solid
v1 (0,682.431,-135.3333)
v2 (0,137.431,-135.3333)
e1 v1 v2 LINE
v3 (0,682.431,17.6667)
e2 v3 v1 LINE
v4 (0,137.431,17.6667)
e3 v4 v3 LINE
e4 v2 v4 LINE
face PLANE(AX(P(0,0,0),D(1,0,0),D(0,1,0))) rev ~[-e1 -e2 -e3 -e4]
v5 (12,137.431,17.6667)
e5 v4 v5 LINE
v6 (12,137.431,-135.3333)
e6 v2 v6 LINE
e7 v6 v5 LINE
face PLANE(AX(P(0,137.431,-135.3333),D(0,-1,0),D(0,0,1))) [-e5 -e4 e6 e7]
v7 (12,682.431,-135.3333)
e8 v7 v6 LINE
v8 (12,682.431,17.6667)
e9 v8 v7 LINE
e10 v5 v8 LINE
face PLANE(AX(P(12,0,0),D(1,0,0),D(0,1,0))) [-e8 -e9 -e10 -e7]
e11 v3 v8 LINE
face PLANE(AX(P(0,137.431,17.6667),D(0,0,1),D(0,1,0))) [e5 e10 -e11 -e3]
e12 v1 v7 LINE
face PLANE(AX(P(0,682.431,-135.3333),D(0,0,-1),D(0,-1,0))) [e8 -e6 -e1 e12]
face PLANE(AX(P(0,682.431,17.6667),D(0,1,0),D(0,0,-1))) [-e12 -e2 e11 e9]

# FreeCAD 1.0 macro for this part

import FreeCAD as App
import Part
import Sketcher
from FreeCAD import Vector


def add_polygon(sketch, points):
    """Adds a closed chain of lines whose ends are joined by coincident constraints."""
    first, n = sketch.GeometryCount, len(points)
    for a, b in zip(points, points[1:] + points[:1]):
        sketch.addGeometry(Part.LineSegment(App.Vector(*a, 0), App.Vector(*b, 0)), False)
    for i in range(n):
        sketch.addConstraint(Sketcher.Constraint("Coincident", first + i, 2, first + (i + 1) % n, 1))

doc = App.newDocument("Part")
params = doc.addObject("Spreadsheet::Sheet", "Params")
for row, (alias, value) in enumerate([
    ("sketch1_width", "545 mm"),
    ("sketch1_height", "153 mm"),
    ("pad1_length", "12 mm"),
], start=1):
    params.set(f"A{row}", alias)
    params.set(f"B{row}", "=" + value)
    params.setAlias(f"B{row}", alias)

body = doc.addObject("PartDesign::Body", "Body")

# Sketch on YZ plane
sketch1 = doc.addObject("Sketcher::SketchObject", "Sketch")
body.addObject(sketch1)
sketch1.AttachmentSupport = (doc.YZ_Plane, [""])
sketch1.MapMode = "FlatFace"
add_polygon(sketch1, [(682, 18), (137, 18), (137, -135), (682, -135)])  # lines 0-3
sketch1.addConstraint(Sketcher.Constraint("Horizontal", 0))
sketch1.addConstraint(Sketcher.Constraint("Vertical", 1))
sketch1.addConstraint(Sketcher.Constraint("Horizontal", 2))
sketch1.addConstraint(Sketcher.Constraint("Vertical", 3))
sketch1.addConstraint(Sketcher.Constraint("DistanceX", 0, 2, 0, 1, 545.0))
sketch1.addConstraint(Sketcher.Constraint("DistanceY", 1, 2, 1, 1, 153.0))
sketch1.addConstraint(Sketcher.Constraint("DistanceX", -1, 1, 0, 2, 137.431))
sketch1.addConstraint(Sketcher.Constraint("DistanceY", -1, 1, 0, 2, 17.6667))
sketch1.setExpression("Constraints[8]", "Params.sketch1_width")
sketch1.setExpression("Constraints[9]", "Params.sketch1_height")
pad1 = doc.addObject("PartDesign::Pad", "Pad")
body.addObject(pad1)
pad1.Profile = sketch1
pad1.setExpression("Length", "Params.pad1_length")

doc.recompute()
